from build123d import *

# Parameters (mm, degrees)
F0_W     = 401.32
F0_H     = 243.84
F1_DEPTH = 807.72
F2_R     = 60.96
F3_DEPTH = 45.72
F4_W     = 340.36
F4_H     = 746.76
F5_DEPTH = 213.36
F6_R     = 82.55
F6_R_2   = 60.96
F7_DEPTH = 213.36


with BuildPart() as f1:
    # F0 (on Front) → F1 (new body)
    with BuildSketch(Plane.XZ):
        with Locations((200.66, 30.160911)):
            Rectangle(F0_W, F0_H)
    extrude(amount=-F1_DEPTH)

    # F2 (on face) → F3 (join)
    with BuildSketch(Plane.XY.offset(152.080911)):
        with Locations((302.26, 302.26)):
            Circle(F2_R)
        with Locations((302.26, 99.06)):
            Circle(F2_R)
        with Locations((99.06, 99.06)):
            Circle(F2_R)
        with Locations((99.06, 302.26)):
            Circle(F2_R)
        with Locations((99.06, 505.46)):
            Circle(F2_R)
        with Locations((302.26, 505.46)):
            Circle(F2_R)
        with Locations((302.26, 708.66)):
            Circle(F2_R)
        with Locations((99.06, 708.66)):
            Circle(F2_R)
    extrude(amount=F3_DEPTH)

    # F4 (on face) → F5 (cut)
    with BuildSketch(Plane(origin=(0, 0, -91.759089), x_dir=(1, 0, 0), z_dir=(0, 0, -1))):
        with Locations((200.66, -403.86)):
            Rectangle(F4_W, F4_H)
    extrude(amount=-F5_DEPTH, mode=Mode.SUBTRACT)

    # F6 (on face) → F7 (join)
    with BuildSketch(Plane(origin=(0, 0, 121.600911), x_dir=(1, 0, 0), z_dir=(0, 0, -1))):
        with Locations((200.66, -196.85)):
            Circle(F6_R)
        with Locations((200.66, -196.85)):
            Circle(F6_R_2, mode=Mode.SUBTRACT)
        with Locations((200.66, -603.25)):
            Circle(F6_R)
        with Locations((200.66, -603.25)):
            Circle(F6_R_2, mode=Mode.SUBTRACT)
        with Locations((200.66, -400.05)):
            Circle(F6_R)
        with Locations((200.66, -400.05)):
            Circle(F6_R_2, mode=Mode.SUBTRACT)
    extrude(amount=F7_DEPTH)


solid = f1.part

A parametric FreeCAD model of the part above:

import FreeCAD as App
import Part
import Sketcher
from FreeCAD import Vector
Q = App.Units.Quantity

doc = App.newDocument("Part")
params = doc.addObject("Spreadsheet::Sheet", "Params")
for row, (alias, value) in enumerate([
    ("sketch1_width", "15.8 in"),
    ("sketch1_height", "9.6 in"),
    ("pad1_length", "31.8 in"),
    ("sketch2_diameter", "4.8 in"),
    ("pad2_length", "1.8 in"),
    ("sketch3_width", "13.4 in"),
    ("sketch3_height", "29.4 in"),
    ("pocket1_length", "8.4 in"),
    ("sketch4_diameter", "6.5 in"),
    ("sketch4_diameter2", "4.8 in"),
    ("pad3_length", "8.4 in"),
], start=1):
    params.set(f"A{row}", alias)
    params.set(f"B{row}", "=" + value)
    params.setAlias(f"B{row}", alias)

body = doc.addObject("PartDesign::Body", "Body")

# Sketch on XZ plane
sketch1 = body.newObject("Sketcher::SketchObject", "Sketch")
sketch1.AttachmentSupport = (doc.getObject("XZ_Plane"), [""])
sketch1.MapMode = "FlatFace"
sketch1.addGeometry(Part.LineSegment(Vector(0, 152.080911, 0), Vector(0, -91.759089, 0)), False)
sketch1.addGeometry(Part.LineSegment(Vector(0, -91.759089, 0), Vector(401.32, -91.759089, 0)), False)
sketch1.addGeometry(Part.LineSegment(Vector(401.32, -91.759089, 0), Vector(401.32, 152.080911, 0)), False)
sketch1.addGeometry(Part.LineSegment(Vector(401.32, 152.080911, 0), Vector(0, 152.080911, 0)), False)
sketch1.addConstraint(Sketcher.Constraint("Coincident", 0, 2, 1, 1))
sketch1.addConstraint(Sketcher.Constraint("Coincident", 1, 2, 2, 1))
sketch1.addConstraint(Sketcher.Constraint("Coincident", 2, 2, 3, 1))
sketch1.addConstraint(Sketcher.Constraint("Coincident", 3, 2, 0, 1))
sketch1.addConstraint(Sketcher.Constraint("Vertical", 0))
sketch1.addConstraint(Sketcher.Constraint("Horizontal", 1))
sketch1.addConstraint(Sketcher.Constraint("Vertical", 2))
sketch1.addConstraint(Sketcher.Constraint("Horizontal", 3))
sketch1.addConstraint(Sketcher.Constraint("PointOnObject", 0, 2, -2))
sketch1.addConstraint(Sketcher.Constraint("DistanceX", 1, 1, 1, 2, Q("15.8 in")))
sketch1.addConstraint(Sketcher.Constraint("DistanceY", 0, 2, 0, 1, Q("9.6 in")))
sketch1.addConstraint(Sketcher.Constraint("DistanceY", 0, 2, -1, 1, 91.759089))
sketch1.setExpression("Constraints[9]", "Params.sketch1_width")
sketch1.setExpression("Constraints[10]", "Params.sketch1_height")
pad1 = body.newObject("PartDesign::Pad", "Pad")
pad1.Profile = sketch1
pad1.setExpression("Length", "Params.pad1_length")
pad1.Reversed = True

# Sketch on XY plane
sketch2 = body.newObject("Sketcher::SketchObject", "Sketch001")
sketch2.AttachmentSupport = (doc.getObject("XY_Plane"), [""])
sketch2.MapMode = "FlatFace"
sketch2.AttachmentOffset = App.Placement(Vector(0, 0, 152.080911), App.Rotation())
sketch2.addGeometry(Part.Circle(Vector(302.26, 302.26, 0), Vector(0, 0, 1), 60.96), False)
sketch2.addGeometry(Part.Circle(Vector(302.26, 99.06, 0), Vector(0, 0, 1), 60.96), False)
sketch2.addGeometry(Part.Circle(Vector(99.06, 99.06, 0), Vector(0, 0, 1), 60.96), False)
sketch2.addGeometry(Part.Circle(Vector(99.06, 302.26, 0), Vector(0, 0, 1), 60.96), False)
sketch2.addGeometry(Part.Circle(Vector(99.06, 505.46, 0), Vector(0, 0, 1), 60.96), False)
sketch2.addGeometry(Part.Circle(Vector(302.26, 505.46, 0), Vector(0, 0, 1), 60.96), False)
sketch2.addGeometry(Part.Circle(Vector(302.26, 708.66, 0), Vector(0, 0, 1), 60.96), False)
sketch2.addGeometry(Part.Circle(Vector(99.06, 708.66, 0), Vector(0, 0, 1), 60.96), False)
sketch2.addConstraint(Sketcher.Constraint("Equal", 0, 1))
sketch2.addConstraint(Sketcher.Constraint("Equal", 1, 2))
sketch2.addConstraint(Sketcher.Constraint("Equal", 2, 3))
sketch2.addConstraint(Sketcher.Constraint("Equal", 3, 4))
sketch2.addConstraint(Sketcher.Constraint("Equal", 4, 5))
sketch2.addConstraint(Sketcher.Constraint("Equal", 5, 6))
sketch2.addConstraint(Sketcher.Constraint("Equal", 6, 7))
sketch2.addConstraint(Sketcher.Constraint("Horizontal", 1, 3, 2, 3))
sketch2.addConstraint(Sketcher.Constraint("Horizontal", 0, 3, 3, 3))
sketch2.addConstraint(Sketcher.Constraint("Horizontal", 4, 3, 5, 3))
sketch2.addConstraint(Sketcher.Constraint("Horizontal", 6, 3, 7, 3))
sketch2.addConstraint(Sketcher.Constraint("Vertical", 0, 3, 1, 3))
sketch2.addConstraint(Sketcher.Constraint("Vertical", 2, 3, 3, 3))
sketch2.addConstraint(Sketcher.Constraint("Vertical", 3, 3, 4, 3))
sketch2.addConstraint(Sketcher.Constraint("Vertical", 1, 3, 5, 3))
sketch2.addConstraint(Sketcher.Constraint("Vertical", 5, 3, 6, 3))
sketch2.addConstraint(Sketcher.Constraint("Vertical", 4, 3, 7, 3))
sketch2.addConstraint(Sketcher.Constraint("Diameter", 0, Q("4.8 in")))
sketch2.addConstraint(Sketcher.Constraint("DistanceY", 1, 3, 0, 3, Q("8 in")))
sketch2.addConstraint(Sketcher.Constraint("DistanceX", 2, 3, 1, 3, Q("8 in")))
sketch2.addConstraint(Sketcher.Constraint("DistanceY", 3, 3, 4, 3, Q("8 in")))
sketch2.addConstraint(Sketcher.Constraint("DistanceY", 5, 3, 6, 3, Q("8 in")))
sketch2.addConstraint(Sketcher.Constraint("DistanceX", -1, 1, 0, 3, Q("11.9 in")))
sketch2.addConstraint(Sketcher.Constraint("DistanceY", -1, 1, 0, 3, Q("11.9 in")))
sketch2.setExpression("Constraints[17]", "Params.sketch2_diameter")
pad2 = body.newObject("PartDesign::Pad", "Pad001")
pad2.Profile = sketch2
pad2.setExpression("Length", "Params.pad2_length")

# Sketch on XY plane
sketch3 = body.newObject("Sketcher::SketchObject", "Sketch002")
sketch3.AttachmentSupport = (doc.getObject("XY_Plane"), [""])
sketch3.MapMode = "FlatFace"
sketch3.AttachmentOffset = App.Placement(Vector(0, 0, -91.759089), App.Rotation())
sketch3.addGeometry(Part.LineSegment(Vector(30.48, 30.48, 0), Vector(30.48, 777.24, 0)), False)
sketch3.addGeometry(Part.LineSegment(Vector(30.48, 777.24, 0), Vector(370.84, 777.24, 0)), False)
sketch3.addGeometry(Part.LineSegment(Vector(370.84, 777.24, 0), Vector(370.84, 30.48, 0)), False)
sketch3.addGeometry(Part.LineSegment(Vector(370.84, 30.48, 0), Vector(30.48, 30.48, 0)), False)
sketch3.addConstraint(Sketcher.Constraint("Coincident", 0, 2, 1, 1))
sketch3.addConstraint(Sketcher.Constraint("Coincident", 1, 2, 2, 1))
sketch3.addConstraint(Sketcher.Constraint("Coincident", 2, 2, 3, 1))
sketch3.addConstraint(Sketcher.Constraint("Coincident", 3, 2, 0, 1))
sketch3.addConstraint(Sketcher.Constraint("Vertical", 0))
sketch3.addConstraint(Sketcher.Constraint("Horizontal", 1))
sketch3.addConstraint(Sketcher.Constraint("Vertical", 2))
sketch3.addConstraint(Sketcher.Constraint("Horizontal", 3))
sketch3.addConstraint(Sketcher.Constraint("DistanceX", 1, 1, 1, 2, Q("13.4 in")))
sketch3.addConstraint(Sketcher.Constraint("DistanceY", 0, 1, 0, 2, Q("29.4 in")))
sketch3.addConstraint(Sketcher.Constraint("DistanceX", -1, 1, 0, 2, Q("1.2 in")))
sketch3.addConstraint(Sketcher.Constraint("DistanceY", -1, 1, 0, 2, Q("30.6 in")))
sketch3.setExpression("Constraints[8]", "Params.sketch3_width")
sketch3.setExpression("Constraints[9]", "Params.sketch3_height")
pocket1 = body.newObject("PartDesign::Pocket", "Pocket")
pocket1.Profile = sketch3
pocket1.setExpression("Length", "Params.pocket1_length")
pocket1.Reversed = True

# Sketch on XY plane
sketch4 = body.newObject("Sketcher::SketchObject", "Sketch003")
sketch4.AttachmentSupport = (doc.getObject("XY_Plane"), [""])
sketch4.MapMode = "FlatFace"
sketch4.AttachmentOffset = App.Placement(Vector(0, 0, 121.600911), App.Rotation())
sketch4.addGeometry(Part.Circle(Vector(200.66, 196.85, 0), Vector(0, 0, 1), 82.55), False)
sketch4.addGeometry(Part.Circle(Vector(200.66, 196.85, 0), Vector(0, 0, 1), 60.96), False)
sketch4.addGeometry(Part.Circle(Vector(200.66, 603.25, 0), Vector(0, 0, 1), 82.55), False)
sketch4.addGeometry(Part.Circle(Vector(200.66, 603.25, 0), Vector(0, 0, 1), 60.96), False)
sketch4.addGeometry(Part.Circle(Vector(200.66, 400.05, 0), Vector(0, 0, 1), 82.55), False)
sketch4.addGeometry(Part.Circle(Vector(200.66, 400.05, 0), Vector(0, 0, 1), 60.96), False)
sketch4.addConstraint(Sketcher.Constraint("Coincident", 1, 3, 0, 3))
sketch4.addConstraint(Sketcher.Constraint("Coincident", 3, 3, 2, 3))
sketch4.addConstraint(Sketcher.Constraint("Coincident", 5, 3, 4, 3))
sketch4.addConstraint(Sketcher.Constraint("Equal", 0, 2))
sketch4.addConstraint(Sketcher.Constraint("Equal", 1, 3))
sketch4.addConstraint(Sketcher.Constraint("Equal", 2, 4))
sketch4.addConstraint(Sketcher.Constraint("Equal", 3, 5))
sketch4.addConstraint(Sketcher.Constraint("Vertical", 1, 3, 2, 3))
sketch4.addConstraint(Sketcher.Constraint("Vertical", 3, 3, 4, 3))
sketch4.addConstraint(Sketcher.Constraint("Diameter", 0, Q("6.5 in")))
sketch4.addConstraint(Sketcher.Constraint("Diameter", 1, Q("4.8 in")))
sketch4.addConstraint(Sketcher.Constraint("DistanceY", 0, 3, 2, 3, Q("16 in")))
sketch4.addConstraint(Sketcher.Constraint("DistanceY", 4, 3, 2, 3, Q("8 in")))
sketch4.addConstraint(Sketcher.Constraint("DistanceX", -1, 1, 0, 3, Q("7.9 in")))
sketch4.addConstraint(Sketcher.Constraint("DistanceY", -1, 1, 0, 3, Q("7.75 in")))
sketch4.setExpression("Constraints[9]", "Params.sketch4_diameter")
sketch4.setExpression("Constraints[10]", "Params.sketch4_diameter2")
pad3 = body.newObject("PartDesign::Pad", "Pad002")
pad3.Profile = sketch4
pad3.setExpression("Length", "Params.pad3_length")
pad3.Reversed = True

doc.recompute()
